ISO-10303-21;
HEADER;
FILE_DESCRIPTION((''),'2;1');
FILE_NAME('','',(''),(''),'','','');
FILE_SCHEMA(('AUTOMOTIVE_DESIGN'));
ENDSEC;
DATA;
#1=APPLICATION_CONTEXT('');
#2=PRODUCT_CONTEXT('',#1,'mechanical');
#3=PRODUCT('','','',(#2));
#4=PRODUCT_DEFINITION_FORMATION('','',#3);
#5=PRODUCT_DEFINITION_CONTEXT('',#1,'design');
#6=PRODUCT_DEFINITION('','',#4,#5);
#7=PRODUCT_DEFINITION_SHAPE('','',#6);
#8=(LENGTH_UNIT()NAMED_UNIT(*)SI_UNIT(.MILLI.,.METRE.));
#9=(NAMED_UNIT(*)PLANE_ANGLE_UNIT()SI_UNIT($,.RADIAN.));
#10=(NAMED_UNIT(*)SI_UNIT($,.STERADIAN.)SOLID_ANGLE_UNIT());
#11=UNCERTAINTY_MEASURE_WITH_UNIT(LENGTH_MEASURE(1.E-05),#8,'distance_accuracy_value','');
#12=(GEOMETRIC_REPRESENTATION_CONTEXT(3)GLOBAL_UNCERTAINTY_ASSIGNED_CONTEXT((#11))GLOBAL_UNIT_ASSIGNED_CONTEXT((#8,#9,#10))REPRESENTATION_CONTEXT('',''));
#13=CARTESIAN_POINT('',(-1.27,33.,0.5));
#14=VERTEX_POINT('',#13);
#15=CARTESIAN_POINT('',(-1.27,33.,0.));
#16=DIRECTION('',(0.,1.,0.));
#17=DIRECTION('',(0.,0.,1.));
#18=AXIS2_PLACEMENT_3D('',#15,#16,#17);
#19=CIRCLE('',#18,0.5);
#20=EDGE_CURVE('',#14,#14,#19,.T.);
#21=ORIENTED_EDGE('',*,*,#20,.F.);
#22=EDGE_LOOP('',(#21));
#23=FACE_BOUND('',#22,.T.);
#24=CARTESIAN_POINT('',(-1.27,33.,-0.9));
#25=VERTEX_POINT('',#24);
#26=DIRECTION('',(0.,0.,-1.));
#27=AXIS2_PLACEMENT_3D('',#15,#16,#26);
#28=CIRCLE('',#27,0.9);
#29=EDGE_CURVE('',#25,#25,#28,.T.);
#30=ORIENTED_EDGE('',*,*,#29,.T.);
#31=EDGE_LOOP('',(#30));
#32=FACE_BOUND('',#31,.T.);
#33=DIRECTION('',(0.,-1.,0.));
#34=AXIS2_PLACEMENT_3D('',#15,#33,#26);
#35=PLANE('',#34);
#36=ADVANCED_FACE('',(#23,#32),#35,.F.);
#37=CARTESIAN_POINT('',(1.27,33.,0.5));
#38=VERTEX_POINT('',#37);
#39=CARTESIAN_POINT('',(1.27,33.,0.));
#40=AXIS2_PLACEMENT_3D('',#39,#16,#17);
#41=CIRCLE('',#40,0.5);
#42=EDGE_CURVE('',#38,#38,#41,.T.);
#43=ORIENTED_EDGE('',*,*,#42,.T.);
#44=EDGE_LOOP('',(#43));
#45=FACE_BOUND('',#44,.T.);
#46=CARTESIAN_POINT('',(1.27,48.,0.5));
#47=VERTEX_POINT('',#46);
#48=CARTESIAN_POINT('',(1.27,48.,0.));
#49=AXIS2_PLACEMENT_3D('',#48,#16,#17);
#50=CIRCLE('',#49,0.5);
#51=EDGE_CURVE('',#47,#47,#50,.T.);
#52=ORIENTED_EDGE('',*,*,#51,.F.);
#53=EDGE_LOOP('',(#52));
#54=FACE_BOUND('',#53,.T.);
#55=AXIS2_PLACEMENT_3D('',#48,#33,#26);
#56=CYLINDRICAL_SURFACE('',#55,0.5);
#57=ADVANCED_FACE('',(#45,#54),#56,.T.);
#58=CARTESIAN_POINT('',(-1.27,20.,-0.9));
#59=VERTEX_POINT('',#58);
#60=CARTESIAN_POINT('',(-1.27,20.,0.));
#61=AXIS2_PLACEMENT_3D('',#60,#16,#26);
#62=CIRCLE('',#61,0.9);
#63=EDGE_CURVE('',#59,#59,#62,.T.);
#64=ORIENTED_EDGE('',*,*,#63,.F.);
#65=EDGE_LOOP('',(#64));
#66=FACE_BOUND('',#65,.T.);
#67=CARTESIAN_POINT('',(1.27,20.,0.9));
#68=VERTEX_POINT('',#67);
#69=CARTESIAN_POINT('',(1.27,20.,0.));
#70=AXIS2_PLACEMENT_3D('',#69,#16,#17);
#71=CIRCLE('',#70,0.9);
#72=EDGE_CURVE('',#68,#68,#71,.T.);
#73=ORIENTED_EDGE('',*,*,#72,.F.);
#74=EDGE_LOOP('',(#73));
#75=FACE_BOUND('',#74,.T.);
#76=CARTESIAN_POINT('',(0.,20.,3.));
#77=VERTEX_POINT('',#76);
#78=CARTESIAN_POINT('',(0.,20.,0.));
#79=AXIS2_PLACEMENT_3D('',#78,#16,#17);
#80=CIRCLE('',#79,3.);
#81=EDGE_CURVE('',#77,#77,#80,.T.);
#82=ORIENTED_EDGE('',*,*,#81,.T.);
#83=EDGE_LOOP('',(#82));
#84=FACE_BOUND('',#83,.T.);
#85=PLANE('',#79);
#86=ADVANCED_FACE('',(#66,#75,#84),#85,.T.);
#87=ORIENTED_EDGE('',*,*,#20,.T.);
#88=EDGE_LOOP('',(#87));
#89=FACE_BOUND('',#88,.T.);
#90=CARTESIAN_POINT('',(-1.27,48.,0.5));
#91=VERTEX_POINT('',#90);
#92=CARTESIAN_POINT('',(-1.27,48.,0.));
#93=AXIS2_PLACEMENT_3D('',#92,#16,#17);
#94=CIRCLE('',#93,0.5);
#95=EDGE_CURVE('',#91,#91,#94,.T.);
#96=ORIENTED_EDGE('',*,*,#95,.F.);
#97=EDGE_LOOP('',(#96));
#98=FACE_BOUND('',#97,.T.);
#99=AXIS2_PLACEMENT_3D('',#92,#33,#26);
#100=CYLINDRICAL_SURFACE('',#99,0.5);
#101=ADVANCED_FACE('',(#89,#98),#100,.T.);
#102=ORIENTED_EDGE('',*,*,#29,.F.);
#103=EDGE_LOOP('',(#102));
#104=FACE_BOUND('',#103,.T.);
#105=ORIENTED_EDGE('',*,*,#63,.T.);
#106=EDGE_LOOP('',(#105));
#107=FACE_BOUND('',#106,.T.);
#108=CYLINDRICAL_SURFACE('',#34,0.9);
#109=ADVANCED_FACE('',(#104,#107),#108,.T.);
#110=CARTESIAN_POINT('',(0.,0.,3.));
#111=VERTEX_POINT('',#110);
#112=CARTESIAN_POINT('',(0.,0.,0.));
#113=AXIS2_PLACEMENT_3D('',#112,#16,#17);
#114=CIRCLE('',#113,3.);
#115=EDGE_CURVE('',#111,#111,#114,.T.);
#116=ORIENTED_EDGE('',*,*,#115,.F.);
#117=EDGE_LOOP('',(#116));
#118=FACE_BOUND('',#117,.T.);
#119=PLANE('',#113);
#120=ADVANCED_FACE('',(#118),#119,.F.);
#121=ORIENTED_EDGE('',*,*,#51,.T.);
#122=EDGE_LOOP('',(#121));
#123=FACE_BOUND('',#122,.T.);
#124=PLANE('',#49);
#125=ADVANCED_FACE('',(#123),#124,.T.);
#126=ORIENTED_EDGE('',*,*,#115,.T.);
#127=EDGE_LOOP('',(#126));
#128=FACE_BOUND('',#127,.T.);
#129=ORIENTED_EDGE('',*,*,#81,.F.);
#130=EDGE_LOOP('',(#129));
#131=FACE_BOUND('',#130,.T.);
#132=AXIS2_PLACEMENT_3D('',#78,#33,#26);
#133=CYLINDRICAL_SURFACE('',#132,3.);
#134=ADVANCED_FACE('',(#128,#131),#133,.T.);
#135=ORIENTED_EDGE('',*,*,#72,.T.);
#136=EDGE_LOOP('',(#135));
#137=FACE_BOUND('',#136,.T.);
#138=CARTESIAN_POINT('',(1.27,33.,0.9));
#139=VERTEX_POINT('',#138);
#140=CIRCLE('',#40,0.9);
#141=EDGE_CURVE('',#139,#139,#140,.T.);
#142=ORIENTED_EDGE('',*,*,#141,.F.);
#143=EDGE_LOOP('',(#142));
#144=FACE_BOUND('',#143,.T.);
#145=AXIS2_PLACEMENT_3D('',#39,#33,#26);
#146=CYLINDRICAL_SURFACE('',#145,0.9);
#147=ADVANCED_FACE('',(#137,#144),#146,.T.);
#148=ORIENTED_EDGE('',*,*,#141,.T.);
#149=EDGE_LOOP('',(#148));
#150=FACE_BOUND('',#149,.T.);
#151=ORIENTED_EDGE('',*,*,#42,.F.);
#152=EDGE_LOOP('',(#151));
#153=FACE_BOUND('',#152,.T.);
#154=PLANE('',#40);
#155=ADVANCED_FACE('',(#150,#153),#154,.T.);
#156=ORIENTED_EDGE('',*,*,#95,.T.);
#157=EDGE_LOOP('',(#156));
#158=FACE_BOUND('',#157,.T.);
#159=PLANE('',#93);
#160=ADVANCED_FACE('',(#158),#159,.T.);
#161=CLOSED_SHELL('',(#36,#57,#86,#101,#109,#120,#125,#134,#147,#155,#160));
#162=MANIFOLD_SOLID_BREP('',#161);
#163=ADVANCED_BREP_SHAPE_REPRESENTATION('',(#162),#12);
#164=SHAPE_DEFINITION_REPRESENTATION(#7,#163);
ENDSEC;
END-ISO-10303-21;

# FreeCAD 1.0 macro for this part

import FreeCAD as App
import Part
import Sketcher

V = App.Vector
Q = App.Units.Quantity

doc = App.newDocument("Part")
params = doc.addObject("Spreadsheet::Sheet", "Params")
for row, (alias, value) in enumerate([
    ("sketch1_diameter", "6 mm"),
    ("pad1_length", "20 mm"),
    ("sketch2_diameter", "1.8 mm"),
    ("pad2_length", "13 mm"),
    ("sketch3_diameter", "1 mm"),
    ("pad3_length", "15 mm"),
], start=1):
    params.set(f"A{row}", alias)
    params.set(f"B{row}", "=" + value)
    params.setAlias(f"B{row}", alias)

body = doc.addObject("PartDesign::Body", "Body")

# Sketch on XZ plane
sketch1 = doc.addObject("Sketcher::SketchObject", "Sketch")
body.addObject(sketch1)
sketch1.AttachmentSupport = (doc.XZ_Plane, [""])
sketch1.MapMode = "FlatFace"
sketch1.addGeometry(Part.Circle(V(0, 0, 0), V(0, 0, 1), 3), False)
sketch1.addConstraint([
    Sketcher.Constraint("Coincident", 0, 3, -1, 1),
    Sketcher.Constraint("Diameter", 0, Q("6 mm")),
])
sketch1.setExpression("Constraints[1]", "Params.sketch1_diameter")
pad1 = doc.addObject("PartDesign::Pad", "Pad")
body.addObject(pad1)
pad1.Profile = sketch1
pad1.setExpression("Length", "Params.pad1_length")
pad1.Reversed = True

# Sketch on XZ plane
sketch2 = doc.addObject("Sketcher::SketchObject", "Sketch001")
body.addObject(sketch2)
sketch2.AttachmentSupport = (doc.XZ_Plane, [""])
sketch2.MapMode = "FlatFace"
sketch2.AttachmentOffset = App.Placement(V(0, 0, -20), App.Rotation())
sketch2.addGeometry([
    Part.Circle(V(1.27, 0, 0), V(0, 0, 1), 0.9),
    Part.Circle(V(-1.27, 0, 0), V(0, 0, 1), 0.9),
], False)
sketch2.addConstraint([
    Sketcher.Constraint("Equal", 0, 1),
    Sketcher.Constraint("Symmetric", 0, 3, 1, 3, -1, 1),
    Sketcher.Constraint("PointOnObject", 0, 3, -1),
    Sketcher.Constraint("Diameter", 0, Q("1.8 mm")),
    Sketcher.Constraint("DistanceX", -1, 1, 0, 3, Q("1.27 mm")),
])
sketch2.setExpression("Constraints[3]", "Params.sketch2_diameter")
pad2 = doc.addObject("PartDesign::Pad", "Pad001")
body.addObject(pad2)
pad2.Profile = sketch2
pad2.setExpression("Length", "Params.pad2_length")
pad2.Reversed = True

# Sketch on XZ plane
sketch3 = doc.addObject("Sketcher::SketchObject", "Sketch002")
body.addObject(sketch3)
sketch3.AttachmentSupport = (doc.XZ_Plane, [""])
sketch3.MapMode = "FlatFace"
sketch3.AttachmentOffset = App.Placement(V(0, 0, -33), App.Rotation())
sketch3.addGeometry([
    Part.Circle(V(1.27, 0, 0), V(0, 0, 1), 0.5),
    Part.Circle(V(-1.27, 0, 0), V(0, 0, 1), 0.5),
], False)
sketch3.addConstraint([
    Sketcher.Constraint("Equal", 0, 1),
    Sketcher.Constraint("Symmetric", 0, 3, 1, 3, -1, 1),
    Sketcher.Constraint("PointOnObject", 0, 3, -1),
    Sketcher.Constraint("Diameter", 0, Q("1 mm")),
    Sketcher.Constraint("DistanceX", -1, 1, 0, 3, Q("1.27 mm")),
])
sketch3.setExpression("Constraints[3]", "Params.sketch3_diameter")
pad3 = doc.addObject("PartDesign::Pad", "Pad002")
body.addObject(pad3)
pad3.Profile = sketch3
pad3.setExpression("Length", "Params.pad3_length")
pad3.Reversed = True

doc.recompute()
